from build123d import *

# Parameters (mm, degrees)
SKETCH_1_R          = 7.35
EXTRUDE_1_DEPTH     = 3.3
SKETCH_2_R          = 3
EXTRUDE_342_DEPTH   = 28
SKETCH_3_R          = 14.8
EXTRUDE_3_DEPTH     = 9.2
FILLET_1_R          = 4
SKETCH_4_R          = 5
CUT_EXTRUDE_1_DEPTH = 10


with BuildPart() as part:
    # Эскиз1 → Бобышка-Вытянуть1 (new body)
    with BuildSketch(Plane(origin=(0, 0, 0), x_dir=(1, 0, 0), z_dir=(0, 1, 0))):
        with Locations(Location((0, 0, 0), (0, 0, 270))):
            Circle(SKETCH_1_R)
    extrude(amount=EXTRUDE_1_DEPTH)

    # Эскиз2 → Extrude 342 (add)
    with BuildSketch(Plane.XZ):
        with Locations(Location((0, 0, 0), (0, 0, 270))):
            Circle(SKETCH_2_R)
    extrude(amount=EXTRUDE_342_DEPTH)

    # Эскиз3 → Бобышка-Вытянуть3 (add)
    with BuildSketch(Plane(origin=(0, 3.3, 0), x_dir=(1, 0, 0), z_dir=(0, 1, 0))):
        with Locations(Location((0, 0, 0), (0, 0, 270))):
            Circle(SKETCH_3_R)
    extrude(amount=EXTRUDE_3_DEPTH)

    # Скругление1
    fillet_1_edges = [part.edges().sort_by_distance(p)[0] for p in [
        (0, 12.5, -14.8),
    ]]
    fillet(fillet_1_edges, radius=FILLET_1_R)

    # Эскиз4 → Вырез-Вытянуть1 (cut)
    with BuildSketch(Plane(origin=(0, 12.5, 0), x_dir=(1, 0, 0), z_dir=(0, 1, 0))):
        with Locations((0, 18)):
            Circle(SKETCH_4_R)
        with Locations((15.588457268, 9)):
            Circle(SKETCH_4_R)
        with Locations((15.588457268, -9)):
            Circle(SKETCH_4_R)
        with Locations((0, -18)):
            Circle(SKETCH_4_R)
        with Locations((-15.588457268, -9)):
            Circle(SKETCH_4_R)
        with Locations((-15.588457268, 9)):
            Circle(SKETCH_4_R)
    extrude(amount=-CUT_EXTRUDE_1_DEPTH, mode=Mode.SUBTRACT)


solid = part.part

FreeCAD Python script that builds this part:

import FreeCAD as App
import Part
import Sketcher
from FreeCAD import Vector


def edges_at(feature, points):
    """Names of the edges that pass closest to the given points."""
    edges = feature.Shape.Edges
    near = lambda p: min(range(len(edges)), key=lambda i: edges[i].distToShape(Part.Vertex(*p))[0])
    return sorted({f"Edge{near(p) + 1}" for p in points})

doc = App.newDocument("Part")
body = doc.addObject("PartDesign::Body", "Body")

# Sketch on XZ plane
sketch1 = body.newObject("Sketcher::SketchObject", "Sketch")
sketch1.AttachmentSupport = (doc.getObject("XZ_Plane"), [""])
sketch1.MapMode = "FlatFace"
sketch1.addGeometry(Part.Circle(Vector(0, 0, 0), Vector(0, 0, 1), 7.35), False)
sketch1.addConstraint([
    Sketcher.Constraint("Coincident", 0, 3, -1, 1),
    Sketcher.Constraint("Diameter", 0, 14.7),
])
pad1 = body.newObject("PartDesign::Pad", "Pad")
pad1.Profile = sketch1
pad1.Length = 3.3
pad1.Reversed = True

# Sketch on XZ plane
sketch2 = body.newObject("Sketcher::SketchObject", "Sketch001")
sketch2.AttachmentSupport = (doc.getObject("XZ_Plane"), [""])
sketch2.MapMode = "FlatFace"
sketch2.addGeometry(Part.Circle(Vector(0, 0, 0), Vector(0, 0, 1), 3), False)
sketch2.addConstraint([
    Sketcher.Constraint("Coincident", 0, 3, -1, 1),
    Sketcher.Constraint("Diameter", 0, 6.0),
])
pad2 = body.newObject("PartDesign::Pad", "Pad001")
pad2.Profile = sketch2
pad2.Length = 28

# Sketch on XZ plane
sketch3 = body.newObject("Sketcher::SketchObject", "Sketch002")
sketch3.AttachmentSupport = (doc.getObject("XZ_Plane"), [""])
sketch3.MapMode = "FlatFace"
sketch3.AttachmentOffset = App.Placement(Vector(0, 0, -3.3), App.Rotation())
sketch3.addGeometry(Part.Circle(Vector(0, 0, 0), Vector(0, 0, 1), 14.8), False)
sketch3.addConstraint([
    Sketcher.Constraint("Coincident", 0, 3, -1, 1),
    Sketcher.Constraint("Diameter", 0, 29.6),
])
pad3 = body.newObject("PartDesign::Pad", "Pad002")
pad3.Profile = sketch3
pad3.Length = 9.2
pad3.Reversed = True
doc.recompute()

fillet = body.newObject("PartDesign::Fillet", "Fillet")
fillet.Base = (pad3, edges_at(pad3, [(0, 12.5, -14.8)]))
fillet.Radius = 4

# Sketch on XZ plane
sketch4 = body.newObject("Sketcher::SketchObject", "Sketch003")
sketch4.AttachmentSupport = (doc.getObject("XZ_Plane"), [""])
sketch4.MapMode = "FlatFace"
sketch4.AttachmentOffset = App.Placement(Vector(0, 0, -12.5), App.Rotation())
sketch4.addGeometry([
    Part.Circle(Vector(0, -18, 0), Vector(0, 0, 1), 5),  # 0
    Part.Circle(Vector(15.588457, -9, 0), Vector(0, 0, 1), 5),  # 1
    Part.Circle(Vector(15.588457, 9, 0), Vector(0, 0, 1), 5),  # 2
    Part.Circle(Vector(0, 18, 0), Vector(0, 0, 1), 5),  # 3
    Part.Circle(Vector(-15.588457, 9, 0), Vector(0, 0, 1), 5),  # 4
    Part.Circle(Vector(-15.588457, -9, 0), Vector(0, 0, 1), 5),  # 5
], False)
sketch4.addConstraint([
    Sketcher.Constraint("Equal", 0, 1),
    Sketcher.Constraint("Equal", 1, 2),
    Sketcher.Constraint("Equal", 2, 3),
    Sketcher.Constraint("Equal", 3, 4),
    Sketcher.Constraint("Equal", 4, 5),
    Sketcher.Constraint("Symmetric", 0, 3, 3, 3, -1, 1),
    Sketcher.Constraint("Symmetric", 1, 3, 4, 3, -1, 1),
    Sketcher.Constraint("Symmetric", 2, 3, 5, 3, -1, 1),
    Sketcher.Constraint("Symmetric", 2, 3, 4, 3, -2),
    Sketcher.Constraint("PointOnObject", 0, 3, -2),
    Sketcher.Constraint("Diameter", 0, 10.0),
    Sketcher.Constraint("DistanceY", 0, 3, -1, 1, 18.0),
    Sketcher.Constraint("DistanceY", 1, 3, -1, 1, 9.0),
    Sketcher.Constraint("DistanceX", -1, 1, 1, 3, 15.588457),
])
pocket1 = body.newObject("PartDesign::Pocket", "Pocket")
pocket1.Profile = sketch4
pocket1.Length = 10
pocket1.Reversed = True

doc.recompute()
